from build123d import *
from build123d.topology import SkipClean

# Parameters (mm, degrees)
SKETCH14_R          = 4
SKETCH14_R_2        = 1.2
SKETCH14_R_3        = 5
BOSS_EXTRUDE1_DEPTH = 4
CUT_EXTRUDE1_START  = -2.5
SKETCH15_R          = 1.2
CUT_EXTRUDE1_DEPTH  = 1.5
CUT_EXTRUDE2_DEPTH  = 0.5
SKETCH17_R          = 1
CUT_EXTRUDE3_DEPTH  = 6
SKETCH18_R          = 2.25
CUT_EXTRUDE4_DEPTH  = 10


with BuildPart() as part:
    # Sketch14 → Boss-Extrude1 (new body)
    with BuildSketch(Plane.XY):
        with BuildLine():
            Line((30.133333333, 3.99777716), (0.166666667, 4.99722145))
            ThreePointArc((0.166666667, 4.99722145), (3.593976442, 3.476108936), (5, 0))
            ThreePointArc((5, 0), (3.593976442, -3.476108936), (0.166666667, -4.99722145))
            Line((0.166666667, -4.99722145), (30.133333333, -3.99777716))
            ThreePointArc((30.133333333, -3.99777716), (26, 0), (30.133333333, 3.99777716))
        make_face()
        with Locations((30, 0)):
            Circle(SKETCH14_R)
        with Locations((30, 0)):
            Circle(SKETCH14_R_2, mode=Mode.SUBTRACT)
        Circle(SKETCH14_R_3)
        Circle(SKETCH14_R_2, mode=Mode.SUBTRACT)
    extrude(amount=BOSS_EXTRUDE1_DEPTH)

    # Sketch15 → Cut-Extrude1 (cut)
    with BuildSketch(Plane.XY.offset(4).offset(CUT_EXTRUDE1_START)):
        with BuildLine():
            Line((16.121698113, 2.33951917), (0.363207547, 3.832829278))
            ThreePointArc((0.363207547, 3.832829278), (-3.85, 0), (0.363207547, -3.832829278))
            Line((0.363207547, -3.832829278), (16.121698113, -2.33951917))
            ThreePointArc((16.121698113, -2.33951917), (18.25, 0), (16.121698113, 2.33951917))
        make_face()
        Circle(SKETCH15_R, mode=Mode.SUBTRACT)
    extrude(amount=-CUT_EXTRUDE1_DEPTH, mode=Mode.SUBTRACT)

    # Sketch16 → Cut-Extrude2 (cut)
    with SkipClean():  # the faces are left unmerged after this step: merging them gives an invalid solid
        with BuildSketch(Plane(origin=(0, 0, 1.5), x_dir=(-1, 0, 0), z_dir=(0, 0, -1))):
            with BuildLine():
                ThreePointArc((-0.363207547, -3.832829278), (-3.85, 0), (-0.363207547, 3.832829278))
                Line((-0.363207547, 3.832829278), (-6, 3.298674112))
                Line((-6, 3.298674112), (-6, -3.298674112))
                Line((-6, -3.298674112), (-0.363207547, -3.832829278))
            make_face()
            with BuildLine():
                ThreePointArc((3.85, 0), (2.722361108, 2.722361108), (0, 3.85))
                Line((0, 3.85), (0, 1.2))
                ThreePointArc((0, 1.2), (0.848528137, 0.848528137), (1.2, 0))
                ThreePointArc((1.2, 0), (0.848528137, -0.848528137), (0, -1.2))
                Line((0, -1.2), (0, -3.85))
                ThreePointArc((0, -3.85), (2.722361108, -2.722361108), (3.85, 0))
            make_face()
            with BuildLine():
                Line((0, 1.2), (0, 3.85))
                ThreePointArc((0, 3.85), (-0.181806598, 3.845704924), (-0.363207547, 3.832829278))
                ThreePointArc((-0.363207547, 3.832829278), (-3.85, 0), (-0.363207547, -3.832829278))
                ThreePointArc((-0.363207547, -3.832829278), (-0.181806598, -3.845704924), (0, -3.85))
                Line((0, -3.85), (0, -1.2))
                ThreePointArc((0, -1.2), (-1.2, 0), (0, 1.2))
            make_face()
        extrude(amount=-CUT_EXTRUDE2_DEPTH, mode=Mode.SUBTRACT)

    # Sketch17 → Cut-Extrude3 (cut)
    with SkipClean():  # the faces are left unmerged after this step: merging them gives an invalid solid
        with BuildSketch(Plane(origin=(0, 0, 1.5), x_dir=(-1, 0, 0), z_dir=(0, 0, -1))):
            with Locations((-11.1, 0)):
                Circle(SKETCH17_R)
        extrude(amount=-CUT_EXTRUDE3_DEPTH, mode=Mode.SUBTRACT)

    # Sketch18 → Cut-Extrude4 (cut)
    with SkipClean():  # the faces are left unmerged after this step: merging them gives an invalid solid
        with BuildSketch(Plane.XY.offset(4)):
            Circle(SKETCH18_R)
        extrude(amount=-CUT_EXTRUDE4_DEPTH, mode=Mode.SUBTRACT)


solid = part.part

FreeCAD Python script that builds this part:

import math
import FreeCAD as App
import Part
import Sketcher

V = App.Vector

doc = App.newDocument("Part")
body = doc.addObject("PartDesign::Body", "Body")

# Sketch on XY plane
sketch1 = body.newObject("Sketcher::SketchObject", "Sketch")
sketch1.AttachmentSupport = (doc.getObject("XY_Plane"), [""])
sketch1.MapMode = "FlatFace"
sketch1.addGeometry([
    Part.LineSegment(V(30.133333, 3.997777, 0), V(0.166667, 4.997221, 0)),  # 0
    Part.ArcOfCircle(Part.Circle(V(0, 0, 0), V(0, 0, 1), 5), math.radians(88.089787), math.radians(271.910213)),  # 1
    Part.LineSegment(V(0.166667, -4.997221, 0), V(30.133333, -3.997777, 0)),  # 2
    Part.ArcOfCircle(Part.Circle(V(30, 0, 0), V(0, 0, 1), 4), math.radians(-88.089787), math.radians(88.089787)),  # 3
    Part.Circle(V(0, 0, 0), V(0, 0, 1), 1.2),  # 4
    Part.Circle(V(30, 0, 0), V(0, 0, 1), 1.2),  # 5
], False)
sketch1.addConstraint([
    Sketcher.Constraint("Tangent", 0, 2, 1, 1),
    Sketcher.Constraint("Tangent", 1, 2, 2, 1),
    Sketcher.Constraint("Tangent", 2, 2, 3, 1),
    Sketcher.Constraint("Tangent", 3, 2, 0, 1),
    Sketcher.Constraint("Coincident", 1, 3, -1, 1),
    Sketcher.Constraint("Coincident", 4, 3, -1, 1),
    Sketcher.Constraint("Coincident", 5, 3, 3, 3),
    Sketcher.Constraint("Equal", 4, 5),
    Sketcher.Constraint("PointOnObject", 3, 3, -1),
    Sketcher.Constraint("Radius", 1, 5.0),
    Sketcher.Constraint("Radius", 3, 4.0),
    Sketcher.Constraint("Diameter", 4, 2.4),
    Sketcher.Constraint("DistanceX", -1, 1, 3, 3, 30.0),
])
pad1 = body.newObject("PartDesign::Pad", "Pad")
pad1.Profile = sketch1
pad1.Length = 4

# Sketch on XY plane
sketch2 = body.newObject("Sketcher::SketchObject", "Sketch001")
sketch2.AttachmentSupport = (doc.getObject("XY_Plane"), [""])
sketch2.MapMode = "FlatFace"
sketch2.AttachmentOffset = App.Placement(V(0, 0, 1.5), App.Rotation())
sketch2.addGeometry([
    Part.LineSegment(V(16.121698, 2.339519, 0), V(0.363208, 3.832829, 0)),  # 0
    Part.ArcOfCircle(Part.Circle(V(0, 0, 0), V(0, 0, 1), 3.85), math.radians(84.586688), math.radians(275.413312)),  # 1
    Part.LineSegment(V(0.363208, -3.832829, 0), V(16.121698, -2.339519, 0)),  # 2
    Part.ArcOfCircle(Part.Circle(V(15.9, 0, 0), V(0, 0, 1), 2.35), math.radians(-84.586688), math.radians(84.586688)),  # 3
    Part.Circle(V(0, 0, 0), V(0, 0, 1), 1.2),  # 4
], False)
sketch2.addConstraint([
    Sketcher.Constraint("Tangent", 0, 2, 1, 1),
    Sketcher.Constraint("Tangent", 1, 2, 2, 1),
    Sketcher.Constraint("Tangent", 2, 2, 3, 1),
    Sketcher.Constraint("Tangent", 3, 2, 0, 1),
    Sketcher.Constraint("Coincident", 1, 3, -1, 1),
    Sketcher.Constraint("Coincident", 4, 3, -1, 1),
    Sketcher.Constraint("PointOnObject", 3, 3, -1),
    Sketcher.Constraint("Diameter", 4, 2.4),
    Sketcher.Constraint("Radius", 1, 3.85),
    Sketcher.Constraint("Radius", 3, 2.35),
    Sketcher.Constraint("DistanceX", -1, 1, 3, 3, 15.9),
])
pocket1 = body.newObject("PartDesign::Pocket", "Pocket")
pocket1.Profile = sketch2
pocket1.Length = 1.5

# Sketch on XY plane
sketch3 = body.newObject("Sketcher::SketchObject", "Sketch002")
sketch3.AttachmentSupport = (doc.getObject("XY_Plane"), [""])
sketch3.MapMode = "FlatFace"
sketch3.AttachmentOffset = App.Placement(V(0, 0, 1.5), App.Rotation())
sketch3.addGeometry([
    Part.ArcOfCircle(Part.Circle(V(0, 0, 0), V(0, 0, 1), 3.85), math.radians(-84.586688), math.radians(84.586688)),  # 0
    Part.LineSegment(V(0.363208, 3.832829, 0), V(6, 3.298674, 0)),  # 1
    Part.LineSegment(V(6, 3.298674, 0), V(6, -3.298674, 0)),  # 2
    Part.LineSegment(V(6, -3.298674, 0), V(0.363208, -3.832829, 0)),  # 3
    Part.ArcOfCircle(Part.Circle(V(0, 0, 0), V(0, 0, 1), 3.85), math.radians(90), math.radians(180)),  # 4
    Part.LineSegment(V(0, 3.85, 0), V(0, 1.2, 0)),  # 5
    Part.ArcOfCircle(Part.Circle(V(0, 0, 0), V(0, 0, 1), 1.2), math.radians(90), math.radians(180)),  # 6
    Part.ArcOfCircle(Part.Circle(V(0, 0, 0), V(0, 0, 1), 1.2), math.radians(-180), math.radians(-90)),  # 7
    Part.LineSegment(V(0, -1.2, 0), V(0, -3.85, 0)),  # 8
    Part.ArcOfCircle(Part.Circle(V(0, 0, 0), V(0, 0, 1), 3.85), math.radians(180), math.radians(270)),  # 9
    Part.LineSegment(V(0, 1.2, 0), V(0, 3.85, 0)),  # 10
    Part.ArcOfCircle(Part.Circle(V(0, 0, 0), V(0, 0, 1), 3.85), math.radians(84.586687), math.radians(90)),  # 11
    Part.ArcOfCircle(Part.Circle(V(0, 0, 0), V(0, 0, 1), 3.85), math.radians(-84.586688), math.radians(84.586688)),  # 12
    Part.ArcOfCircle(Part.Circle(V(0, 0, 0), V(0, 0, 1), 3.85), math.radians(-90), math.radians(-84.586687)),  # 13
    Part.LineSegment(V(0, -3.85, 0), V(0, -1.2, 0)),  # 14
    Part.ArcOfCircle(Part.Circle(V(0, 0, 0), V(0, 0, 1), 1.2), math.radians(-90), math.radians(90)),  # 15
], False)
sketch3.addConstraint([
    Sketcher.Constraint("Tangent", 0, 2, 1, 1),
    Sketcher.Constraint("Coincident", 1, 2, 2, 1),
    Sketcher.Constraint("Coincident", 2, 2, 3, 1),
    Sketcher.Constraint("Tangent", 3, 2, 0, 1),
    Sketcher.Constraint("Coincident", 4, 1, 5, 1),
    Sketcher.Constraint("Coincident", 5, 2, 6, 1),
    Sketcher.Constraint("Tangent", 6, 2, 7, 1),
    Sketcher.Constraint("Coincident", 7, 2, 8, 1),
    Sketcher.Constraint("Coincident", 8, 2, 9, 2),
    Sketcher.Constraint("Tangent", 9, 1, 4, 2),
    Sketcher.Constraint("Coincident", 10, 2, 11, 2),
    Sketcher.Constraint("Tangent", 11, 1, 12, 2),
    Sketcher.Constraint("Tangent", 12, 1, 13, 2),
    Sketcher.Constraint("Coincident", 13, 1, 14, 1),
    Sketcher.Constraint("Coincident", 14, 2, 15, 1),
    Sketcher.Constraint("Coincident", 15, 2, 10, 1),
    Sketcher.Constraint("Vertical", 2),
    Sketcher.Constraint("Vertical", 5),
    Sketcher.Constraint("Vertical", 8),
    Sketcher.Constraint("Vertical", 10),
    Sketcher.Constraint("Vertical", 14),
    Sketcher.Constraint("Coincident", 0, 3, -1, 1),
    Sketcher.Constraint("Coincident", 4, 3, -1, 1),
    Sketcher.Constraint("Coincident", 6, 3, -1, 1),
    Sketcher.Constraint("Coincident", 11, 3, -1, 1),
    Sketcher.Constraint("Coincident", 13, 3, -1, 1),
    Sketcher.Constraint("Coincident", 15, 3, -1, 1),
    Sketcher.Constraint("Coincident", 10, 2, 4, 1),
    Sketcher.Constraint("Coincident", 11, 1, 0, 2),
    Sketcher.Constraint("Coincident", 13, 1, 8, 2),
    Sketcher.Constraint("Equal", 6, 7),
    Sketcher.Constraint("Equal", 7, 15),
    Sketcher.Constraint("PointOnObject", 4, 1, -2),
    Sketcher.Constraint("PointOnObject", 6, 2, -1),
    Sketcher.Constraint("PointOnObject", 7, 2, -2),
    Sketcher.Constraint("PointOnObject", 9, 1, -1),
    Sketcher.Constraint("Vertical", 0, 2, 3, 2),
    Sketcher.Constraint("Vertical", 11, 1, 12, 1),
    Sketcher.Constraint("Radius", 6, 1.2),
    Sketcher.Constraint("Radius", 0, 3.85),
    Sketcher.Constraint("DistanceX", -1, 1, 1, 2, 6.0),
    Sketcher.Constraint("DistanceY", 2, 2, 2, 1, 6.597348),
])
pocket2 = body.newObject("PartDesign::Pocket", "Pocket001")
pocket2.Profile = sketch3
pocket2.Length = 0.5
pocket2.Reversed = True

# Sketch on XY plane
sketch4 = body.newObject("Sketcher::SketchObject", "Sketch003")
sketch4.AttachmentSupport = (doc.getObject("XY_Plane"), [""])
sketch4.MapMode = "FlatFace"
sketch4.AttachmentOffset = App.Placement(V(0, 0, 1.5), App.Rotation())
sketch4.addGeometry(Part.Circle(V(11.1, 0, 0), V(0, 0, 1), 1), False)
sketch4.addConstraint([
    Sketcher.Constraint("PointOnObject", 0, 3, -1),
    Sketcher.Constraint("Diameter", 0, 2.0),
    Sketcher.Constraint("DistanceX", -1, 1, 0, 3, 11.1),
])
pocket3 = body.newObject("PartDesign::Pocket", "Pocket002")
pocket3.Profile = sketch4
pocket3.Length = 6
pocket3.Reversed = True

# Sketch on XY plane
sketch5 = body.newObject("Sketcher::SketchObject", "Sketch004")
sketch5.AttachmentSupport = (doc.getObject("XY_Plane"), [""])
sketch5.MapMode = "FlatFace"
sketch5.AttachmentOffset = App.Placement(V(0, 0, 4), App.Rotation())
sketch5.addGeometry(Part.Circle(V(0, 0, 0), V(0, 0, 1), 2.25), False)
sketch5.addConstraint([
    Sketcher.Constraint("Coincident", 0, 3, -1, 1),
    Sketcher.Constraint("Diameter", 0, 4.5),
])
pocket4 = body.newObject("PartDesign::Pocket", "Pocket003")
pocket4.Profile = sketch5
pocket4.Length = 10

doc.recompute()
